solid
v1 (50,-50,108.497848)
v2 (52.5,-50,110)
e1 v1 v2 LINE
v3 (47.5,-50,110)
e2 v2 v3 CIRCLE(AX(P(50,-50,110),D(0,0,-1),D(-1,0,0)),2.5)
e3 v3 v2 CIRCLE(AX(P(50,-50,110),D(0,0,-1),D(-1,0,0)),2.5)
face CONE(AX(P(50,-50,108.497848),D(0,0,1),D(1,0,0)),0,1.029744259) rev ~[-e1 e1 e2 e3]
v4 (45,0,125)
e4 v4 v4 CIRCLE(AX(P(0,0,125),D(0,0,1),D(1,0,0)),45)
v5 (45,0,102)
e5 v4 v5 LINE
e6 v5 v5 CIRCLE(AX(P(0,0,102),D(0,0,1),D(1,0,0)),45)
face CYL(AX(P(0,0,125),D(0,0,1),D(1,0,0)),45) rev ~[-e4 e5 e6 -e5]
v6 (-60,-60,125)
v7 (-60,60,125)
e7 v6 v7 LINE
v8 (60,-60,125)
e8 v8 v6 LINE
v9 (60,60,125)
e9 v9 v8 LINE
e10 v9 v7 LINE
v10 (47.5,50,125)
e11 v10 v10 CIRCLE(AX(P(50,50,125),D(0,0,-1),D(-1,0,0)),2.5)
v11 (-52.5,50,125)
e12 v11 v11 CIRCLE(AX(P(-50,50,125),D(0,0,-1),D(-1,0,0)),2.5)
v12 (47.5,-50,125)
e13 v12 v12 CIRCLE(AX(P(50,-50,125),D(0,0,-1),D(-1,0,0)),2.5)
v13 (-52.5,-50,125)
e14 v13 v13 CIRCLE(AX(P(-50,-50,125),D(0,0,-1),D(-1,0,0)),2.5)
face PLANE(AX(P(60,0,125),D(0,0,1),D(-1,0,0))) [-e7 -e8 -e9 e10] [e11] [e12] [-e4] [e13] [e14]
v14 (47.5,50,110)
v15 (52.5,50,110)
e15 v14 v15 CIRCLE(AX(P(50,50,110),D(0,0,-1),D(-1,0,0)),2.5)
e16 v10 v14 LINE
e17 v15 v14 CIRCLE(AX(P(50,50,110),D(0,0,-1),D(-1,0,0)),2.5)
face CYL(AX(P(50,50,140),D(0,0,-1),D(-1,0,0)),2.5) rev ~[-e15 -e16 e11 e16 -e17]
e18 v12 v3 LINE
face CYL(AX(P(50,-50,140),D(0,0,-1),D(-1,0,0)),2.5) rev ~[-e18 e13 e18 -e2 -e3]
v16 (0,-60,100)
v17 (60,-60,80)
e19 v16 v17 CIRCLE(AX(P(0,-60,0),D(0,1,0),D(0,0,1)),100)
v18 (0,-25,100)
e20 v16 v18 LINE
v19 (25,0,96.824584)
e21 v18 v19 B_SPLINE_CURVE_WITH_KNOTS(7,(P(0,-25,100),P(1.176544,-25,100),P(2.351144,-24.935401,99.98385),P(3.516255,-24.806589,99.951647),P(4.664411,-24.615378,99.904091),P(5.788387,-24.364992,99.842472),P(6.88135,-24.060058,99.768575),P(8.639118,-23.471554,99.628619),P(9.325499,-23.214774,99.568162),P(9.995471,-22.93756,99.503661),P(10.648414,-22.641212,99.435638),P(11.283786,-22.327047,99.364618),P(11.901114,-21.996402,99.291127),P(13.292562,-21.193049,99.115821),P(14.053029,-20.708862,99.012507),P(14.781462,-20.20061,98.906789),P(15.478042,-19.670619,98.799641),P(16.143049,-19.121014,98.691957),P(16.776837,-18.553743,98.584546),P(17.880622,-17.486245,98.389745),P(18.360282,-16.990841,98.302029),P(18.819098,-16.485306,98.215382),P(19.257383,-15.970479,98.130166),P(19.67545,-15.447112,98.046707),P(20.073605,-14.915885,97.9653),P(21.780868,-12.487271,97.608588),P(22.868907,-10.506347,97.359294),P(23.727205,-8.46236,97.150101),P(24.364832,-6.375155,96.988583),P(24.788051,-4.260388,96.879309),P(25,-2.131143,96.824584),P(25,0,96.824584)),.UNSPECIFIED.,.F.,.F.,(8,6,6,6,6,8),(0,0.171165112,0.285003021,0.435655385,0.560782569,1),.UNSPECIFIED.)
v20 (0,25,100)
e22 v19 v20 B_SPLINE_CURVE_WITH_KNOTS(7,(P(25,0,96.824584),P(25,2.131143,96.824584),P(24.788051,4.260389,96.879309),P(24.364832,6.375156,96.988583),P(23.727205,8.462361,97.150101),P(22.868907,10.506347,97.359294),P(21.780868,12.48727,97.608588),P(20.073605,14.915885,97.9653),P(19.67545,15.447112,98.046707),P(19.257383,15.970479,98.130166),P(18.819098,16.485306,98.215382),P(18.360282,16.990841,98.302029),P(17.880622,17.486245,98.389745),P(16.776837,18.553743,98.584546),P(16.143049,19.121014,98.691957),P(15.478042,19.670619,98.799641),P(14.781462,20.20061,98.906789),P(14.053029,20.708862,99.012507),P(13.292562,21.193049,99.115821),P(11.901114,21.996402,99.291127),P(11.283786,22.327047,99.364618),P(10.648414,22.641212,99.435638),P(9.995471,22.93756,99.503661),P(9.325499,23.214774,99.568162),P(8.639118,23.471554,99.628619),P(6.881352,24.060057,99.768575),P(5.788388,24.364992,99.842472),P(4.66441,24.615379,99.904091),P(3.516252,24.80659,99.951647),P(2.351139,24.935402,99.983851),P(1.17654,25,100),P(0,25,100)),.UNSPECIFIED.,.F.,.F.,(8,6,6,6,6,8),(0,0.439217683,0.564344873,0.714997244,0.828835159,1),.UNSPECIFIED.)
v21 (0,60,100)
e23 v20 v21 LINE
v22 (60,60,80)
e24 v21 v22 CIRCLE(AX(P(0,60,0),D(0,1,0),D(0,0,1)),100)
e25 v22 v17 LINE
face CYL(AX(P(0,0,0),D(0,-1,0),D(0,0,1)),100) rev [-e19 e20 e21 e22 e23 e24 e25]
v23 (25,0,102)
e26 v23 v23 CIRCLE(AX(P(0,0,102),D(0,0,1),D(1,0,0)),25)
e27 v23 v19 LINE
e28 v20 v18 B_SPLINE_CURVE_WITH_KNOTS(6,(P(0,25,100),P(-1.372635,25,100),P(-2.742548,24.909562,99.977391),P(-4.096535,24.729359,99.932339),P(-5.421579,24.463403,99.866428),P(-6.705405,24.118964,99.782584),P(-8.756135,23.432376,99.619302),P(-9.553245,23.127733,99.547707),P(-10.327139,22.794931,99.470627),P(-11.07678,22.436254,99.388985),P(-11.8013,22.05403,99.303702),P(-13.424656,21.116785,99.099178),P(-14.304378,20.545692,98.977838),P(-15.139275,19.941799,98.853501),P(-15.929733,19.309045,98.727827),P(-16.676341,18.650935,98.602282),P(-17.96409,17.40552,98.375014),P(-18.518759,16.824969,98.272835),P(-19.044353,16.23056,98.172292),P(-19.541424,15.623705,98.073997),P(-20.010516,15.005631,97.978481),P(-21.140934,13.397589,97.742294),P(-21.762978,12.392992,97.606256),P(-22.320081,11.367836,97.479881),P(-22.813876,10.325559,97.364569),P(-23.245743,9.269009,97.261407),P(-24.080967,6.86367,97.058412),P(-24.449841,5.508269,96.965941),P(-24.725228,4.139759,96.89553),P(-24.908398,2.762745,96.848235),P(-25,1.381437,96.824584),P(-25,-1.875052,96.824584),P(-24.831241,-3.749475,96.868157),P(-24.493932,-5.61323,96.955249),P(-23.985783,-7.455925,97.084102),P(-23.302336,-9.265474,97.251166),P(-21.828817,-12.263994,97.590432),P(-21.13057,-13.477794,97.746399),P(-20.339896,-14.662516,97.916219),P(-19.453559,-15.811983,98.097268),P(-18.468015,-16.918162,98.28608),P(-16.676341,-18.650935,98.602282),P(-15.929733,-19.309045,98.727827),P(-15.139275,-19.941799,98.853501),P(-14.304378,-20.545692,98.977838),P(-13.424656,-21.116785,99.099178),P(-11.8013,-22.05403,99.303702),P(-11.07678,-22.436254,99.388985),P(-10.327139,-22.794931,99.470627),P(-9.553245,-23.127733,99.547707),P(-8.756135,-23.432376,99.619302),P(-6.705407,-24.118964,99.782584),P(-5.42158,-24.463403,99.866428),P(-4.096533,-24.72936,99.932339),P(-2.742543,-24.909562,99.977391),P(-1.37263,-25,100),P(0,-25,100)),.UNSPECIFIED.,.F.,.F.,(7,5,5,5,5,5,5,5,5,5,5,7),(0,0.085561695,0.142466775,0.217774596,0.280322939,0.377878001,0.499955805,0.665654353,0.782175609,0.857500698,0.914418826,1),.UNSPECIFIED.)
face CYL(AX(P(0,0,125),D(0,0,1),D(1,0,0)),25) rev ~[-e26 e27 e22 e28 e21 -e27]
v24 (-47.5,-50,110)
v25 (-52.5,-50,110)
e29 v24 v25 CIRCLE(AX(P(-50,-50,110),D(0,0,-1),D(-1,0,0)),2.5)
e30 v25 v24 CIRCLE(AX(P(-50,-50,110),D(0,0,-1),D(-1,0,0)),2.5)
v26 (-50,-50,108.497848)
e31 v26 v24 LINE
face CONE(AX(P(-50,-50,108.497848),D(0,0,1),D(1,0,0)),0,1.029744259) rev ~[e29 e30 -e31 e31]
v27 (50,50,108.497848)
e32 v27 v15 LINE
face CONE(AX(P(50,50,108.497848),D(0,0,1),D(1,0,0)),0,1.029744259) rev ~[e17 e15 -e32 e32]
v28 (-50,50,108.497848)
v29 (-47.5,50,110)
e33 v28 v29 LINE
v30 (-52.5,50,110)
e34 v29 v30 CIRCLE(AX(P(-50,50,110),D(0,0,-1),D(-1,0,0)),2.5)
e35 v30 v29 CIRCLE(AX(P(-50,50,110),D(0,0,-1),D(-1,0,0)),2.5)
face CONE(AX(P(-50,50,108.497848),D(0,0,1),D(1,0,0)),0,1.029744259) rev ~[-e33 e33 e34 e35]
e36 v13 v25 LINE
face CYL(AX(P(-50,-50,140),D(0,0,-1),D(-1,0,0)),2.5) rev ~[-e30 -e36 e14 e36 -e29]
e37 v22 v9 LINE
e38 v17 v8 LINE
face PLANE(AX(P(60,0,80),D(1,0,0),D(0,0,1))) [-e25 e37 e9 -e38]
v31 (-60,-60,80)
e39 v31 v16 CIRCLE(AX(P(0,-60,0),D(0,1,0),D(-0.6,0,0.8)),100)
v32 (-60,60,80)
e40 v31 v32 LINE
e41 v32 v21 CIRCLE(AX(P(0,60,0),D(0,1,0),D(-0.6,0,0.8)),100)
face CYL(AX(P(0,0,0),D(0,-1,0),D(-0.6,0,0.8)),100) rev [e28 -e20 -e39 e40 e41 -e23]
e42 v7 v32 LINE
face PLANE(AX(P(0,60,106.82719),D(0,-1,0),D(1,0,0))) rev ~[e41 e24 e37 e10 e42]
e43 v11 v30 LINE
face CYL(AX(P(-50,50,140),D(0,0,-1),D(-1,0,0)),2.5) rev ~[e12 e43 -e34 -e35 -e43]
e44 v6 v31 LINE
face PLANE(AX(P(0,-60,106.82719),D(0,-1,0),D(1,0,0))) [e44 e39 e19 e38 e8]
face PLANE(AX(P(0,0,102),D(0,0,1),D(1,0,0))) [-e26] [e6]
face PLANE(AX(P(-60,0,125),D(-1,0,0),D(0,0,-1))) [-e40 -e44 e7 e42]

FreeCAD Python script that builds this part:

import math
import FreeCAD as App
import Part
import Sketcher
Q = App.Units.Quantity

doc = App.newDocument("Part")
body = doc.addObject("PartDesign::Body", "Body")

sketch1 = doc.addObject("Sketcher::SketchObject", "Sketch")
body.addObject(sketch1)
sketch1.AttachmentSupport = (doc.XZ_Plane, [""])
sketch1.MapMode = "FlatFace"
sketch1.addGeometry([
    Part.ArcOfCircle(Part.Circle(App.Vector(0, 0, 0), App.Vector(0, 0, 1), 100), math.radians(53), math.radians(90)),
    Part.LineSegment(App.Vector(60, 80, 0), App.Vector(60, 125, 0)),
    Part.LineSegment(App.Vector(60, 125, 0), App.Vector(-60, 125, 0)),
    Part.LineSegment(App.Vector(-60, 125, 0), App.Vector(-60, 80, 0)),
    Part.ArcOfCircle(Part.Circle(App.Vector(0, 0, 0), App.Vector(0, 0, 1), 100), math.radians(90), math.radians(127)),
], False)
sketch1.addConstraint([
    Sketcher.Constraint("Coincident", 0, 1, 1, 1),
    Sketcher.Constraint("Coincident", 1, 2, 2, 1),
    Sketcher.Constraint("Coincident", 2, 2, 3, 1),
    Sketcher.Constraint("Coincident", 3, 2, 4, 2),
    Sketcher.Constraint("Tangent", 4, 1, 0, 2),
    Sketcher.Constraint("Vertical", 1),
    Sketcher.Constraint("Horizontal", 2),
    Sketcher.Constraint("Vertical", 3),
    Sketcher.Constraint("Coincident", 0, 3, -1, 1),
    Sketcher.Constraint("Equal", 0, 4),
    Sketcher.Constraint("PointOnObject", 4, 1, -2),
    Sketcher.Constraint("Horizontal", 0, 1, 3, 2),
    Sketcher.Constraint("Radius", 0, Q("100 mm")),
    Sketcher.Constraint("DistanceX", 2, 2, 2, 1, Q("120 mm")),
    Sketcher.Constraint("DistanceY", 1, 1, 1, 2, Q("45 mm")),
])
pad1 = doc.addObject("PartDesign::Pad", "Pad")
body.addObject(pad1)
pad1.Profile = sketch1
pad1.Length = 120
pad1.Midplane = True

sketch2 = doc.addObject("Sketcher::SketchObject", "Sketch001")
body.addObject(sketch2)
sketch2.AttachmentSupport = (doc.XY_Plane, [""])
sketch2.MapMode = "FlatFace"
sketch2.AttachmentOffset = App.Placement(App.Vector(0, 0, 125), App.Rotation())
sketch2.addGeometry(Part.Circle(App.Vector(0, 0, 0), App.Vector(0, 0, 1), 25), False)
sketch2.addConstraint([
    Sketcher.Constraint("Coincident", 0, 3, -1, 1),
    Sketcher.Constraint("Diameter", 0, Q("50 mm")),
])
pocket1 = doc.addObject("PartDesign::Pocket", "Pocket")
body.addObject(pocket1)
pocket1.Profile = sketch2
pocket1.Length = 50

sketch3 = doc.addObject("Sketcher::SketchObject", "Sketch002")
body.addObject(sketch3)
sketch3.AttachmentSupport = (doc.XY_Plane, [""])
sketch3.MapMode = "FlatFace"
sketch3.AttachmentOffset = App.Placement(App.Vector(0, 0, 125), App.Rotation())
sketch3.addGeometry(Part.Circle(App.Vector(0, 0, 0), App.Vector(0, 0, 1), 45), False)
sketch3.addConstraint([
    Sketcher.Constraint("Coincident", 0, 3, -1, 1),
    Sketcher.Constraint("Diameter", 0, Q("90 mm")),
])
pocket2 = doc.addObject("PartDesign::Pocket", "Pocket001")
body.addObject(pocket2)
pocket2.Profile = sketch3
pocket2.Length = 23

sketch4 = doc.addObject("Sketcher::SketchObject", "Sketch003")
body.addObject(sketch4)
sketch4.AttachmentSupport = (doc.XY_Plane, [""])
sketch4.MapMode = "FlatFace"
sketch4.AttachmentOffset = App.Placement(App.Vector(0, 0, 125), App.Rotation())
sketch4.addGeometry([
    Part.Circle(App.Vector(-50, 50, 0), App.Vector(0, 0, 1), 2.5),
    Part.Circle(App.Vector(50, 50, 0), App.Vector(0, 0, 1), 2.5),
    Part.Circle(App.Vector(50, -50, 0), App.Vector(0, 0, 1), 2.5),
    Part.Circle(App.Vector(-50, -50, 0), App.Vector(0, 0, 1), 2.5),
], False)
sketch4.addConstraint([
    Sketcher.Constraint("Equal", 0, 1),
    Sketcher.Constraint("Equal", 1, 2),
    Sketcher.Constraint("Equal", 2, 3),
    Sketcher.Constraint("Symmetric", 0, 3, 2, 3, -1, 1),
    Sketcher.Constraint("Symmetric", 1, 3, 3, 3, -1, 1),
    Sketcher.Constraint("Symmetric", 0, 3, 1, 3, -2),
    Sketcher.Constraint("Diameter", 0, Q("5 mm")),
    Sketcher.Constraint("DistanceX", 0, 3, -1, 1, Q("50 mm")),
    Sketcher.Constraint("DistanceY", -1, 1, 0, 3, Q("50 mm")),
])
doc.recompute()
hole = doc.addObject("PartDesign::Hole", "Hole")
body.addObject(hole)
hole.Profile = sketch4
hole.ThreadType = "None"
hole.Diameter = 5
hole.DepthType = "Dimension"
hole.Depth = 15
hole.DrillPoint = "Angled"
hole.DrillPointAngle = 118

doc.recompute()
